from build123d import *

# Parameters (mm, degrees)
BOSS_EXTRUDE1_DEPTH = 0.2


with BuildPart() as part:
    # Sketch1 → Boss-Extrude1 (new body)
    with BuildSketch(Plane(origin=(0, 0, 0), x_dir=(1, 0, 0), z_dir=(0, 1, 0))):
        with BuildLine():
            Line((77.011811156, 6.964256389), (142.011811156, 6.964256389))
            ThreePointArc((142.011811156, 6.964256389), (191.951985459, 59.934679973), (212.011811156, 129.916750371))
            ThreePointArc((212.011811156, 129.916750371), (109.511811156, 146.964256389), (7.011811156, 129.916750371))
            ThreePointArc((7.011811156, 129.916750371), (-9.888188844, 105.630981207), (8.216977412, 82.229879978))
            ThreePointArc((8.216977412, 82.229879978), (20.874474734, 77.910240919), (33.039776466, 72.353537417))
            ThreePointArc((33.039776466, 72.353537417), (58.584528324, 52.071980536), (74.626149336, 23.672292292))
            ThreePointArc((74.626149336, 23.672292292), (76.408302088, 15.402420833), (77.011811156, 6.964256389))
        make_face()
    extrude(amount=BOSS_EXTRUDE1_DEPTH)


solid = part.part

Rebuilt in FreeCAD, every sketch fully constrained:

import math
import FreeCAD as App
import Part
import Sketcher
from FreeCAD import Vector
Q = App.Units.Quantity

doc = App.newDocument("Part")
body = doc.addObject("PartDesign::Body", "Body")

sketch1 = body.newObject("Sketcher::SketchObject", "Sketch")
sketch1.AttachmentSupport = (doc.getObject("XZ_Plane"), [""])
sketch1.MapMode = "FlatFace"
sketch1.addGeometry(Part.LineSegment(Vector(77, -7, 0), Vector(142, -7, 0)), False)
sketch1.addGeometry(Part.ArcOfCircle(Part.Circle(Vector(58, -136, 0), Vector(0, 0, 1), 154), math.radians(2), math.radians(57)), False)
sketch1.addGeometry(Part.ArcOfCircle(Part.Circle(Vector(110, 170, 0), Vector(0, 0, 1), 317), math.radians(-109), math.radians(-71)), False)
sketch1.addGeometry(Part.ArcOfCircle(Part.Circle(Vector(15, -106, 0), Vector(0, 0, 1), 25), math.radians(106), math.radians(251)), False)
sketch1.addGeometry(Part.ArcOfCircle(Part.Circle(Vector(-29, 47, 0), Vector(0, 0, 1), 134), math.radians(-74.01), math.radians(-62.6)), False)
sketch1.addGeometry(Part.ArcOfCircle(Part.Circle(Vector(-6, 3, 0), Vector(0, 0, 1), 85), math.radians(-63), math.radians(-18)), False)
sketch1.addGeometry(Part.ArcOfCircle(Part.Circle(Vector(17, -7, 0), Vector(0, 0, 1), 60), math.radians(-16.2), math.radians(-0.06)), False)
sketch1.addConstraint(Sketcher.Constraint("Coincident", 0, 2, 1, 2))
sketch1.addConstraint(Sketcher.Constraint("Coincident", 1, 1, 2, 2))
sketch1.addConstraint(Sketcher.Constraint("Tangent", 2, 1, 3, 2))
sketch1.addConstraint(Sketcher.Constraint("Tangent", 3, 1, 4, 1))
sketch1.addConstraint(Sketcher.Constraint("Tangent", 4, 2, 5, 1))
sketch1.addConstraint(Sketcher.Constraint("Coincident", 5, 2, 6, 1))
sketch1.addConstraint(Sketcher.Constraint("Coincident", 6, 2, 0, 1))
sketch1.addConstraint(Sketcher.Constraint("Horizontal", 0))
sketch1.addConstraint(Sketcher.Constraint("Horizontal", 1, 1, 2, 1))
sketch1.addConstraint(Sketcher.Constraint("Radius", 3, Q("25 mm")))
sketch1.addConstraint(Sketcher.Constraint("DistanceX", 0, 1, 0, 2, Q("65 mm")))
sketch1.addConstraint(Sketcher.Constraint("Radius", 1, Q("154.14 mm")))
sketch1.addConstraint(Sketcher.Constraint("Radius", 2, Q("316.67 mm")))
sketch1.addConstraint(Sketcher.Constraint("Radius", 4, Q("134.35 mm")))
sketch1.addConstraint(Sketcher.Constraint("Radius", 5, Q("85.12 mm")))
sketch1.addConstraint(Sketcher.Constraint("Radius", 6, Q("60.11 mm")))
sketch1.addConstraint(Sketcher.Constraint("DistanceX", 0, 2, 1, 1, Q("70 mm")))
sketch1.addConstraint(Sketcher.Constraint("DistanceY", 1, 3, 3, 1, Q("53.967201 mm")))
sketch1.addConstraint(Sketcher.Constraint("DistanceX", 3, 1, 4, 2, Q("24.822799 mm")))
sketch1.addConstraint(Sketcher.Constraint("DistanceX", -1, 1, 1, 3, Q("57.999808 mm")))
sketch1.addConstraint(Sketcher.Constraint("DistanceY", 1, 3, -1, 1, Q("136.197081 mm")))
sketch1.addConstraint(Sketcher.Constraint("DistanceX", -1, 1, 2, 3, Q("109.511811 mm")))
sketch1.addConstraint(Sketcher.Constraint("DistanceY", 3, 3, -1, 1, Q("106.262592 mm")))
sketch1.addConstraint(Sketcher.Constraint("DistanceX", -1, 1, 5, 2, Q("74.626149 mm")))
pad1 = body.newObject("PartDesign::Pad", "Pad")
pad1.Profile = sketch1
pad1.Length = 0.2
pad1.Reversed = True

doc.recompute()
